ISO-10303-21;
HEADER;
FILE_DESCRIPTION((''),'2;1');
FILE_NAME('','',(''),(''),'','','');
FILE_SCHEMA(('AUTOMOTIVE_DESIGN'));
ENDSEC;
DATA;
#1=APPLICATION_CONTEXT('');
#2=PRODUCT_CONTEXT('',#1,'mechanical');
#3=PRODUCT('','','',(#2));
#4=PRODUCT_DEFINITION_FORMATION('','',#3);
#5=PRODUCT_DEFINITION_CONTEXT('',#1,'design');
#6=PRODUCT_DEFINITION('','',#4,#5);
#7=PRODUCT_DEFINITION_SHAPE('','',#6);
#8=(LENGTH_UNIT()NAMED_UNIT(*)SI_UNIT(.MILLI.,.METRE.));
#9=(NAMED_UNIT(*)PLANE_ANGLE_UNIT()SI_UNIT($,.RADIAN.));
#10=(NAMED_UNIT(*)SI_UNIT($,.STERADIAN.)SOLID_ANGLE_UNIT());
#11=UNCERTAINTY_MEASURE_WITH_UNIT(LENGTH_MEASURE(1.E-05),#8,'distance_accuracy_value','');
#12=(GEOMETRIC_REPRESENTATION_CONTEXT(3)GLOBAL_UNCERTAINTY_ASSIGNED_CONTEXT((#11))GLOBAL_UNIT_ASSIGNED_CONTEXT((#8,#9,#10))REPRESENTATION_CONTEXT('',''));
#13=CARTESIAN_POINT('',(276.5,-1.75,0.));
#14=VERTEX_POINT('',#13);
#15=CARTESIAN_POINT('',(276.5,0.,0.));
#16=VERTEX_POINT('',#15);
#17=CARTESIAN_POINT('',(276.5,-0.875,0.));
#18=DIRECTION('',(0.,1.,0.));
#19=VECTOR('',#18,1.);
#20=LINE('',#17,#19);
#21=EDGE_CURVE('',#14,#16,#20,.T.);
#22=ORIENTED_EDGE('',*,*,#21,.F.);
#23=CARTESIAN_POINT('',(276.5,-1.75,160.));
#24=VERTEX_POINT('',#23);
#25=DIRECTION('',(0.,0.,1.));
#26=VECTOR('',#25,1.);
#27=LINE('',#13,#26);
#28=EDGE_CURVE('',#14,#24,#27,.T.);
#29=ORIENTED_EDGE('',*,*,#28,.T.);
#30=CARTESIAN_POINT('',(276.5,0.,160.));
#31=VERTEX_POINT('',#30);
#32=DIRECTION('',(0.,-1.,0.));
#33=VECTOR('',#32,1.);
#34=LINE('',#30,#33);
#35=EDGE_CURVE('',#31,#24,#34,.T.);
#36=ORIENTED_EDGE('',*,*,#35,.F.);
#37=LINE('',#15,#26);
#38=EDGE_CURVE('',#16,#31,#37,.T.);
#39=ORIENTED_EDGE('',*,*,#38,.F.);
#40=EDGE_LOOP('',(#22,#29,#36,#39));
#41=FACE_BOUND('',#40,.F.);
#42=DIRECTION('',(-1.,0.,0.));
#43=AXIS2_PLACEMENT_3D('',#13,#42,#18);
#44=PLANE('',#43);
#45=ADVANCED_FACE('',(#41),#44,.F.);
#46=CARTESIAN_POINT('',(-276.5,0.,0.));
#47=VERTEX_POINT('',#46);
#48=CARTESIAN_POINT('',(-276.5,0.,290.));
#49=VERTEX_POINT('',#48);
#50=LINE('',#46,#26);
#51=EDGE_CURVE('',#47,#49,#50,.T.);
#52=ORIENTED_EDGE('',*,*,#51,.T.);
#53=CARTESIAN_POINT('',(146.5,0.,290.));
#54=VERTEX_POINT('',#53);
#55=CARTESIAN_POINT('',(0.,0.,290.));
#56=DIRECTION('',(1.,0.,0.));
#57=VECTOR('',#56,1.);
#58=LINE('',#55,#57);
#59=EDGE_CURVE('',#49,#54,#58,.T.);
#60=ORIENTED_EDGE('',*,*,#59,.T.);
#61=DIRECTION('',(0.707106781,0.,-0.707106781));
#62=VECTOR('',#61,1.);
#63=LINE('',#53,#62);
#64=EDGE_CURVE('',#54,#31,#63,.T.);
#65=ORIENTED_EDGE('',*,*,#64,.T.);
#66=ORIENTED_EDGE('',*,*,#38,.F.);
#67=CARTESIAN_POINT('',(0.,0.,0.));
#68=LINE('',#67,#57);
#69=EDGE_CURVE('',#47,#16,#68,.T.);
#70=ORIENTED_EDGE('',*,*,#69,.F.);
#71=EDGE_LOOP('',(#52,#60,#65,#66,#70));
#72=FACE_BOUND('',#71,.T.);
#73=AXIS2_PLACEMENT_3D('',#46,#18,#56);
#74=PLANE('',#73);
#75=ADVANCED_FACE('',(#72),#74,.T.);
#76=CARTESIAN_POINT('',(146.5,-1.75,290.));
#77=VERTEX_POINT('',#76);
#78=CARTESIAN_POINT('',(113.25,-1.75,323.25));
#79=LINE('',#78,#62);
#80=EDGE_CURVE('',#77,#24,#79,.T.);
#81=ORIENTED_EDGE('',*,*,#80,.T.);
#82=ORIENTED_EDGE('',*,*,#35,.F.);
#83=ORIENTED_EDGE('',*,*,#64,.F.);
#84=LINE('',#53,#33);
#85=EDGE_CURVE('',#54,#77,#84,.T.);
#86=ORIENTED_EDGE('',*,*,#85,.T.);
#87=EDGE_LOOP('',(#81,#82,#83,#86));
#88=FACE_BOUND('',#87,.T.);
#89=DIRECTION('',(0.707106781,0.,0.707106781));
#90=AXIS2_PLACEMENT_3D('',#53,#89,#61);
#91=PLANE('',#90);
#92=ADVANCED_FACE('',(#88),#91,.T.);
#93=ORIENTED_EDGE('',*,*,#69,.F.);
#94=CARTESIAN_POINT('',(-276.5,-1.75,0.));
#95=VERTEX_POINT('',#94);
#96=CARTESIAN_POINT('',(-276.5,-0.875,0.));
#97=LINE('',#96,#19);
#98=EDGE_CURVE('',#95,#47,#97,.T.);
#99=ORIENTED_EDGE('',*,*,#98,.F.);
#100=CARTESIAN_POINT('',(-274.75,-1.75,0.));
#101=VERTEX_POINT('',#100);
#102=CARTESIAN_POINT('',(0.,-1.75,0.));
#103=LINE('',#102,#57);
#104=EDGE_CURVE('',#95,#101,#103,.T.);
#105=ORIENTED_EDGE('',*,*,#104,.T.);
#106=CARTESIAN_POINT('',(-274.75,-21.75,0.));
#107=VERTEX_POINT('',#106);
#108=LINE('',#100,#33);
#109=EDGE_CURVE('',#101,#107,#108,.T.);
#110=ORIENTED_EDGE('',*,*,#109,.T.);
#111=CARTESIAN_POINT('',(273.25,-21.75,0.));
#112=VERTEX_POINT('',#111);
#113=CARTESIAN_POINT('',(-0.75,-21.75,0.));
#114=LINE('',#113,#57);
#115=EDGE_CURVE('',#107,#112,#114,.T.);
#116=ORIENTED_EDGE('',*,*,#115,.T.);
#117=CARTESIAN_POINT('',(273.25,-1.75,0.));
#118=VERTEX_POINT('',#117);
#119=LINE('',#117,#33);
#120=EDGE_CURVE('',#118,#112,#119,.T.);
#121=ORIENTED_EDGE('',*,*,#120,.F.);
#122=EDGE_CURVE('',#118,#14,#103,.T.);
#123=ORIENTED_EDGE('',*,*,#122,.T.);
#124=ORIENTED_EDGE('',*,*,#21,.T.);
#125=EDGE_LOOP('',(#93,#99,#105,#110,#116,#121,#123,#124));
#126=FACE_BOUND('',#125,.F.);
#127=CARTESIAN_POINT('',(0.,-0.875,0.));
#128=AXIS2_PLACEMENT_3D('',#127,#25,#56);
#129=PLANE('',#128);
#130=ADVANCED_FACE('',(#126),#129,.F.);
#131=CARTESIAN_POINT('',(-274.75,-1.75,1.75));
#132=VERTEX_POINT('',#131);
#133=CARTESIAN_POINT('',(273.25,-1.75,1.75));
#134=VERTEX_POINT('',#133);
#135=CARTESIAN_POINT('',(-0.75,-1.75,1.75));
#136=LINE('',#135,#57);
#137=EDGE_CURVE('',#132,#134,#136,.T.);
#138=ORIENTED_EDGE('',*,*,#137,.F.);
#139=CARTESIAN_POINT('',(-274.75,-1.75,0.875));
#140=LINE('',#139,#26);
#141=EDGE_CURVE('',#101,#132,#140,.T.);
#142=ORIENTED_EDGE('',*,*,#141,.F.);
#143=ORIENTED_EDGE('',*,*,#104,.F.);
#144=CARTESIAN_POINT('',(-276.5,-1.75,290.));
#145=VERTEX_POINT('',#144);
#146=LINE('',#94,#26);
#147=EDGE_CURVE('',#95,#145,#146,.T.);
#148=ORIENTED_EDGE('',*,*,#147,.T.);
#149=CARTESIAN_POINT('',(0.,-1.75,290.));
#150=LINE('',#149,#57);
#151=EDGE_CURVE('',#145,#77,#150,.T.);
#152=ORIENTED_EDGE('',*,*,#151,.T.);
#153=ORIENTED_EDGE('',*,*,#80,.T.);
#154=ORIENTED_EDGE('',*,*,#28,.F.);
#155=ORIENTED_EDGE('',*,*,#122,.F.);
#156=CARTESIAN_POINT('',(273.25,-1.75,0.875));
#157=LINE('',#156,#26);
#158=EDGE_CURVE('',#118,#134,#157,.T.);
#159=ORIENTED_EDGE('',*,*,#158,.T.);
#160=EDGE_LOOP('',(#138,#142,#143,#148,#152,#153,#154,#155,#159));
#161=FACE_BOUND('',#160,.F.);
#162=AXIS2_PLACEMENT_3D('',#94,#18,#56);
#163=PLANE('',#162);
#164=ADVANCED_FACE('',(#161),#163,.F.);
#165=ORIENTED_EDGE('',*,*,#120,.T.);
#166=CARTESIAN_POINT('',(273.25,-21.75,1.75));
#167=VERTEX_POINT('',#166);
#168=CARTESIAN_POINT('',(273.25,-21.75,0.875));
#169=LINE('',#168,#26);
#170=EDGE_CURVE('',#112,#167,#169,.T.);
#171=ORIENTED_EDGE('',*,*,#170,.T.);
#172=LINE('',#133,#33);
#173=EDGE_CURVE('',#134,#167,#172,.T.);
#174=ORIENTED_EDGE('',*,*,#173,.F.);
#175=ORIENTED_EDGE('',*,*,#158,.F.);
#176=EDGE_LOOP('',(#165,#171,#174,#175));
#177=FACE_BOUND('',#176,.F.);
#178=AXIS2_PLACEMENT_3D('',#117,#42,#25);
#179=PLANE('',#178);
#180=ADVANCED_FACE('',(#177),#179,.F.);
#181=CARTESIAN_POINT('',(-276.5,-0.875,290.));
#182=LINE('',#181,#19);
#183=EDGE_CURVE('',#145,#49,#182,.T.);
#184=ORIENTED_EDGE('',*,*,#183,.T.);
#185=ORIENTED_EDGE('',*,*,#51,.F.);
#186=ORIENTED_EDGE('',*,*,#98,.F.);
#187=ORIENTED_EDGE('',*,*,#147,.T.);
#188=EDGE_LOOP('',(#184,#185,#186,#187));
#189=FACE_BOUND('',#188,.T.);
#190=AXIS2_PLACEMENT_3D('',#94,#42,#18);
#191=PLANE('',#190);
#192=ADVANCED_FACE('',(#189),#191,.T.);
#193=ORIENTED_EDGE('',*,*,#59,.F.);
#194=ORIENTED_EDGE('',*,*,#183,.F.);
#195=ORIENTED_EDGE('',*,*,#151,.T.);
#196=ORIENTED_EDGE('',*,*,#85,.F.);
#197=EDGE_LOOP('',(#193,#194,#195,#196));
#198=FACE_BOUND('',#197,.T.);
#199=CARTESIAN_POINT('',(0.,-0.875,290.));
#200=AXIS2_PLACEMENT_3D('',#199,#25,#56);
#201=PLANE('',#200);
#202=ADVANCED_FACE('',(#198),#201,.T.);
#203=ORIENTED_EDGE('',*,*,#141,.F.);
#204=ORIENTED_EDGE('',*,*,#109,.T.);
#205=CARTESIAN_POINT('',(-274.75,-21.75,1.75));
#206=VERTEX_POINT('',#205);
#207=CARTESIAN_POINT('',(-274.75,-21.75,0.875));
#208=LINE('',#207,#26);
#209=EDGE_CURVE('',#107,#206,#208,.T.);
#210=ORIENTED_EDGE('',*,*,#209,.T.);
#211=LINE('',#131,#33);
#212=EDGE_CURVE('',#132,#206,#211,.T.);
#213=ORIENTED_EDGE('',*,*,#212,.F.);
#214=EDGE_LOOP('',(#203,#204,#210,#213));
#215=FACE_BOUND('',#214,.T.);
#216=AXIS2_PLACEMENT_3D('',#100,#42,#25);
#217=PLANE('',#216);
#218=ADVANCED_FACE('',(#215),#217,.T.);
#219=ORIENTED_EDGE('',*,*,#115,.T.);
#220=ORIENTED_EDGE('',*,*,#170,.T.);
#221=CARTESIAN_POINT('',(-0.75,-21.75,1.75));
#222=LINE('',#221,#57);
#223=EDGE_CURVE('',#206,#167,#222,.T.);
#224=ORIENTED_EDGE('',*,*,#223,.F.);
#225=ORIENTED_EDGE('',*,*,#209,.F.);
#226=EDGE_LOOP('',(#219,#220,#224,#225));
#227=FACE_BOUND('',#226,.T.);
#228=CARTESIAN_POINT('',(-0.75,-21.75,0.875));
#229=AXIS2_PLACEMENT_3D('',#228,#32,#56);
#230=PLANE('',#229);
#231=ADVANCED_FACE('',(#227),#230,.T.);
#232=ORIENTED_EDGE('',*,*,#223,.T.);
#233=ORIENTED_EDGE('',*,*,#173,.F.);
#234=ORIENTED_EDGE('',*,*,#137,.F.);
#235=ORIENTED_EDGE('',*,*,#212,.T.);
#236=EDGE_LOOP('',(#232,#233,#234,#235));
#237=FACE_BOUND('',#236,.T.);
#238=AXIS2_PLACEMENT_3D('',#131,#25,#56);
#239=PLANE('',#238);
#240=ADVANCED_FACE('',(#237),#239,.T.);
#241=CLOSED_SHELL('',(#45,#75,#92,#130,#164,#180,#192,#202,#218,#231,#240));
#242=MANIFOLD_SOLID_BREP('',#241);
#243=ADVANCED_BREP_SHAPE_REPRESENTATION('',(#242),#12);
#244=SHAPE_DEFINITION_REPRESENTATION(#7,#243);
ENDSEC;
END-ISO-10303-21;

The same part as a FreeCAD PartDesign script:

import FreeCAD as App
import Part
import Sketcher
Q = App.Units.Quantity

doc = App.newDocument("Part")
body = doc.addObject("PartDesign::Body", "Body")

# Sketch on XY plane
sketch1 = doc.addObject("Sketcher::SketchObject", "Sketch")
body.addObject(sketch1)
sketch1.AttachmentSupport = (doc.XY_Plane, [""])
sketch1.MapMode = "FlatFace"
sketch1.addGeometry([
    Part.LineSegment(App.Vector(-276.5, 0, 0), App.Vector(-276.5, -1.75, 0)),
    Part.LineSegment(App.Vector(-276.5, -1.75, 0), App.Vector(276.5, -1.75, 0)),
    Part.LineSegment(App.Vector(276.5, -1.75, 0), App.Vector(276.5, 0, 0)),
    Part.LineSegment(App.Vector(276.5, 0, 0), App.Vector(-276.5, 0, 0)),
], False)
sketch1.addConstraint([
    Sketcher.Constraint("Coincident", 0, 2, 1, 1),
    Sketcher.Constraint("Coincident", 1, 2, 2, 1),
    Sketcher.Constraint("Coincident", 2, 2, 3, 1),
    Sketcher.Constraint("Coincident", 3, 2, 0, 1),
    Sketcher.Constraint("Vertical", 0),
    Sketcher.Constraint("Horizontal", 1),
    Sketcher.Constraint("Vertical", 2),
    Sketcher.Constraint("Horizontal", 3),
    Sketcher.Constraint("Symmetric", 2, 2, 3, 2, -1, 1),
    Sketcher.Constraint("DistanceX", 1, 1, 1, 2, Q("553 mm")),
    Sketcher.Constraint("DistanceY", 0, 2, 0, 1, Q("1.75 mm")),
])
pad1 = doc.addObject("PartDesign::Pad", "Pad")
body.addObject(pad1)
pad1.Profile = sketch1
pad1.Length = 290

# Sketch on XZ plane
sketch2 = doc.addObject("Sketcher::SketchObject", "Sketch001")
body.addObject(sketch2)
sketch2.AttachmentSupport = (doc.XZ_Plane, [""])
sketch2.MapMode = "FlatFace"
sketch2.addGeometry([
    Part.LineSegment(App.Vector(146.5, 290, 0), App.Vector(276.5, 290, 0)),
    Part.LineSegment(App.Vector(276.5, 290, 0), App.Vector(276.5, 160, 0)),
    Part.LineSegment(App.Vector(276.5, 160, 0), App.Vector(146.5, 290, 0)),
], False)
sketch2.addConstraint([
    Sketcher.Constraint("Coincident", 0, 2, 1, 1),
    Sketcher.Constraint("Coincident", 1, 2, 2, 1),
    Sketcher.Constraint("Coincident", 2, 2, 0, 1),
    Sketcher.Constraint("Horizontal", 0),
    Sketcher.Constraint("Vertical", 1),
    Sketcher.Constraint("Equal", 0, 1),
    Sketcher.Constraint("DistanceX", 0, 1, 0, 2, Q("130 mm")),
    Sketcher.Constraint("DistanceY", -1, 1, 0, 2, Q("290 mm")),
    Sketcher.Constraint("DistanceX", -1, 1, 0, 2, Q("276.5 mm")),
])
pocket1 = doc.addObject("PartDesign::Pocket", "Pocket")
body.addObject(pocket1)
pocket1.Profile = sketch2
pocket1.Length = 10
pocket1.Reversed = True

# Sketch on XZ plane
sketch3 = doc.addObject("Sketcher::SketchObject", "Sketch002")
body.addObject(sketch3)
sketch3.AttachmentSupport = (doc.XZ_Plane, [""])
sketch3.MapMode = "FlatFace"
sketch3.AttachmentOffset = App.Placement(App.Vector(0, 0, 1.75), App.Rotation())
sketch3.addGeometry([
    Part.LineSegment(App.Vector(-274.75, 1.75, 0), App.Vector(-274.75, 0, 0)),
    Part.LineSegment(App.Vector(-274.75, 0, 0), App.Vector(273.25, 0, 0)),
    Part.LineSegment(App.Vector(273.25, 0, 0), App.Vector(273.25, 1.75, 0)),
    Part.LineSegment(App.Vector(273.25, 1.75, 0), App.Vector(-274.75, 1.75, 0)),
], False)
sketch3.addConstraint([
    Sketcher.Constraint("Coincident", 0, 2, 1, 1),
    Sketcher.Constraint("Coincident", 1, 2, 2, 1),
    Sketcher.Constraint("Coincident", 2, 2, 3, 1),
    Sketcher.Constraint("Coincident", 3, 2, 0, 1),
    Sketcher.Constraint("Vertical", 0),
    Sketcher.Constraint("Horizontal", 1),
    Sketcher.Constraint("Vertical", 2),
    Sketcher.Constraint("Horizontal", 3),
    Sketcher.Constraint("PointOnObject", 0, 2, -1),
    Sketcher.Constraint("DistanceX", 1, 1, 1, 2, Q("548 mm")),
    Sketcher.Constraint("DistanceY", 0, 2, 0, 1, Q("1.75 mm")),
    Sketcher.Constraint("DistanceX", 0, 2, -1, 1, Q("274.75 mm")),
])
pad2 = doc.addObject("PartDesign::Pad", "Pad001")
body.addObject(pad2)
pad2.Profile = sketch3
pad2.Length = 20

doc.recompute()
